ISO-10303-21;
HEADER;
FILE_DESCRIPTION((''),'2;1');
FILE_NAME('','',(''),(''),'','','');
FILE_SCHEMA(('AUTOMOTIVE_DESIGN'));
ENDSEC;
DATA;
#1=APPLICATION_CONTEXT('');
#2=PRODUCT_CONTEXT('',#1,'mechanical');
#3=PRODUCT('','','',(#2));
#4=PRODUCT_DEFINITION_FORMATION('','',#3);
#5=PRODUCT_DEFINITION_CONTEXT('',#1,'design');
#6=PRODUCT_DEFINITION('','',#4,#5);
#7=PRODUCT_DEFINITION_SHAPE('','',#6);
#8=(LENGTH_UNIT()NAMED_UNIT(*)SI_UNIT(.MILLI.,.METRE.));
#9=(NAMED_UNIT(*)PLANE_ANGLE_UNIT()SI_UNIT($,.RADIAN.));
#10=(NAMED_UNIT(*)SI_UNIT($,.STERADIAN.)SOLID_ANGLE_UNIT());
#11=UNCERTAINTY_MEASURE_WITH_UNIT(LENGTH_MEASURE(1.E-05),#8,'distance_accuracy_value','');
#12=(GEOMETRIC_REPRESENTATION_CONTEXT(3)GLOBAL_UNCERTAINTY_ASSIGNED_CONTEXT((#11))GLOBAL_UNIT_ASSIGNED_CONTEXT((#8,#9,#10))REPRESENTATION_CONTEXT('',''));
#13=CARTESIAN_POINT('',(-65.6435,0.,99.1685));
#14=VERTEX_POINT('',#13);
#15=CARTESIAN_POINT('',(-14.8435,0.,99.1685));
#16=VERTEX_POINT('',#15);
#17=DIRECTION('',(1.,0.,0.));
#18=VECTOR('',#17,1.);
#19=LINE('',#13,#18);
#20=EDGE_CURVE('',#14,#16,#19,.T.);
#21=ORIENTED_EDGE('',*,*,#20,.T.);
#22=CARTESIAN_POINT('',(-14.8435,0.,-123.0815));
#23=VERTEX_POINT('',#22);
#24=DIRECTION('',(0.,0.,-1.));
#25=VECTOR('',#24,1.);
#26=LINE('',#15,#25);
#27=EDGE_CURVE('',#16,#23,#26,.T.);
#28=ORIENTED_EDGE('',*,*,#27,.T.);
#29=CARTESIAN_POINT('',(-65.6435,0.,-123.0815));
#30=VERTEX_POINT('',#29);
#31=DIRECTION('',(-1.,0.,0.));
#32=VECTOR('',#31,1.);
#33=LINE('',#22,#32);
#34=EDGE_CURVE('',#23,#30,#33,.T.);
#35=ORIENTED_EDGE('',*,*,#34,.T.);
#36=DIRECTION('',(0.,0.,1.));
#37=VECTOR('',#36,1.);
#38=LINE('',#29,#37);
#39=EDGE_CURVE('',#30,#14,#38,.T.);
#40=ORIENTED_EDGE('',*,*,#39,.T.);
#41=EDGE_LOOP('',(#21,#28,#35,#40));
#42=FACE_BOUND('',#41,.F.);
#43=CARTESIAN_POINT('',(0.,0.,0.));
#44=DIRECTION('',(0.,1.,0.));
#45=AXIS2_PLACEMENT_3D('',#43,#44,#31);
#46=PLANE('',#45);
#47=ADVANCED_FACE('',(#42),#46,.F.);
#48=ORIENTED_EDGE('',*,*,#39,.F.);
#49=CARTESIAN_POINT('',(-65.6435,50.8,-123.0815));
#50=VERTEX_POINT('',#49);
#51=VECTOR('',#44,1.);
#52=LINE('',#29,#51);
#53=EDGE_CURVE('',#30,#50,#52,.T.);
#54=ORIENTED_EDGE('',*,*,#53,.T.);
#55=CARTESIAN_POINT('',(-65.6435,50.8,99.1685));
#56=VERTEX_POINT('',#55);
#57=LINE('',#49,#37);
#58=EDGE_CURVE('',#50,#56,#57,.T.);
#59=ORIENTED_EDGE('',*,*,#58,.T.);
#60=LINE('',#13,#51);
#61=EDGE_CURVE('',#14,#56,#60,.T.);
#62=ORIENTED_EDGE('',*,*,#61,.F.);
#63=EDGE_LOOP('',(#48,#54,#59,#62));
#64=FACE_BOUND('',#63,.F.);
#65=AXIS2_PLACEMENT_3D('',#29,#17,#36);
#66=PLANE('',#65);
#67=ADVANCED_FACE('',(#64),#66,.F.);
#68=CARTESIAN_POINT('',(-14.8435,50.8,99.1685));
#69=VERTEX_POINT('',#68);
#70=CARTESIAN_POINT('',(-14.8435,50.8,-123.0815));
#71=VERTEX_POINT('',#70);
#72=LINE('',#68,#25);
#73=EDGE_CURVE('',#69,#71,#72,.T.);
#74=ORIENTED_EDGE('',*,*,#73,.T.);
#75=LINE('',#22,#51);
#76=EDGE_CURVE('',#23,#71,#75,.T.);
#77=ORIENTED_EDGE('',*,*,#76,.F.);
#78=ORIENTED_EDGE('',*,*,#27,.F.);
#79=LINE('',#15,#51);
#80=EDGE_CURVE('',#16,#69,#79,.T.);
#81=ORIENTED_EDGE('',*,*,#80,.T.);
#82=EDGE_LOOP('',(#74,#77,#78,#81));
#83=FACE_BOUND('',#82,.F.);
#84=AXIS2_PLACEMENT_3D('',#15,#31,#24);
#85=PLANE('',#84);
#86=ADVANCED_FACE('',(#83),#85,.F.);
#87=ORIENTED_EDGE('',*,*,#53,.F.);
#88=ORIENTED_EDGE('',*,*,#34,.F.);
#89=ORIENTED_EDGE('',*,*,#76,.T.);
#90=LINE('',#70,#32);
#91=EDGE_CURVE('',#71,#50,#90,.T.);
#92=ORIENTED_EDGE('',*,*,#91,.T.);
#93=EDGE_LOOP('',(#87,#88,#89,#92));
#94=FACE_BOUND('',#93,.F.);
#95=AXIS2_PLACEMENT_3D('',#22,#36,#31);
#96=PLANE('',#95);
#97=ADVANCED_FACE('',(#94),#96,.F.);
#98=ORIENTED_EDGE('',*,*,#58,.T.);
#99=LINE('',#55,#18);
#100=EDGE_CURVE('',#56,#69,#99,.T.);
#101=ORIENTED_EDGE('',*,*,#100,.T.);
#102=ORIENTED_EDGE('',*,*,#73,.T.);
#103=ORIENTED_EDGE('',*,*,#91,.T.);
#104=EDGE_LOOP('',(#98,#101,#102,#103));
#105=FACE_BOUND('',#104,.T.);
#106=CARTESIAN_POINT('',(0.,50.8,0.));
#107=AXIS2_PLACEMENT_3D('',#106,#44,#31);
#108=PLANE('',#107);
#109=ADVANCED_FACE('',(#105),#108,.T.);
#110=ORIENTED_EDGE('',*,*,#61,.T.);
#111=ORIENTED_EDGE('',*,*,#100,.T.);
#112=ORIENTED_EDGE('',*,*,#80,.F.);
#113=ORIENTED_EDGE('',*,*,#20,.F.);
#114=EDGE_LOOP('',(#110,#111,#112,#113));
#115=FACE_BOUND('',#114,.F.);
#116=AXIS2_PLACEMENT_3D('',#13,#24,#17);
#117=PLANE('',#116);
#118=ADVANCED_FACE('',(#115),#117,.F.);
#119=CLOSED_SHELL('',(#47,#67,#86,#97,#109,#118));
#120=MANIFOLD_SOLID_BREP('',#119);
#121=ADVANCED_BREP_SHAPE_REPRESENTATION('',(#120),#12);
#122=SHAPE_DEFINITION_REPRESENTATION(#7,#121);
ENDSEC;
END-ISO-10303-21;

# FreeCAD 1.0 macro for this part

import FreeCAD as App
import Part
import Sketcher
Q = App.Units.Quantity

doc = App.newDocument("Part")
body = doc.addObject("PartDesign::Body", "Body")

sketch1 = body.newObject("Sketcher::SketchObject", "Sketch")
sketch1.AttachmentSupport = (doc.getObject("XZ_Plane"), [""])
sketch1.MapMode = "FlatFace"
sketch1.addGeometry([
    Part.LineSegment(App.Vector(-66, -123, 0), App.Vector(-66, 99, 0)),
    Part.LineSegment(App.Vector(-66, 99, 0), App.Vector(-15, 99, 0)),
    Part.LineSegment(App.Vector(-15, 99, 0), App.Vector(-15, -123, 0)),
    Part.LineSegment(App.Vector(-15, -123, 0), App.Vector(-66, -123, 0)),
], False)
sketch1.addConstraint([
    Sketcher.Constraint("Coincident", 0, 2, 1, 1),
    Sketcher.Constraint("Coincident", 1, 2, 2, 1),
    Sketcher.Constraint("Coincident", 2, 2, 3, 1),
    Sketcher.Constraint("Coincident", 3, 2, 0, 1),
    Sketcher.Constraint("Vertical", 0),
    Sketcher.Constraint("Horizontal", 1),
    Sketcher.Constraint("Vertical", 2),
    Sketcher.Constraint("Horizontal", 3),
    Sketcher.Constraint("DistanceX", 1, 1, 1, 2, Q("2 in")),
    Sketcher.Constraint("DistanceY", 0, 1, 0, 2, Q("8.75 in")),
    Sketcher.Constraint("DistanceX", 0, 2, -1, 1, Q("2.5844 in")),
    Sketcher.Constraint("DistanceY", -1, 1, 0, 2, Q("99.1685 mm")),
])
pad1 = body.newObject("PartDesign::Pad", "Pad")
pad1.Profile = sketch1
pad1.Length = Q("2 in")
pad1.Reversed = True

doc.recompute()
